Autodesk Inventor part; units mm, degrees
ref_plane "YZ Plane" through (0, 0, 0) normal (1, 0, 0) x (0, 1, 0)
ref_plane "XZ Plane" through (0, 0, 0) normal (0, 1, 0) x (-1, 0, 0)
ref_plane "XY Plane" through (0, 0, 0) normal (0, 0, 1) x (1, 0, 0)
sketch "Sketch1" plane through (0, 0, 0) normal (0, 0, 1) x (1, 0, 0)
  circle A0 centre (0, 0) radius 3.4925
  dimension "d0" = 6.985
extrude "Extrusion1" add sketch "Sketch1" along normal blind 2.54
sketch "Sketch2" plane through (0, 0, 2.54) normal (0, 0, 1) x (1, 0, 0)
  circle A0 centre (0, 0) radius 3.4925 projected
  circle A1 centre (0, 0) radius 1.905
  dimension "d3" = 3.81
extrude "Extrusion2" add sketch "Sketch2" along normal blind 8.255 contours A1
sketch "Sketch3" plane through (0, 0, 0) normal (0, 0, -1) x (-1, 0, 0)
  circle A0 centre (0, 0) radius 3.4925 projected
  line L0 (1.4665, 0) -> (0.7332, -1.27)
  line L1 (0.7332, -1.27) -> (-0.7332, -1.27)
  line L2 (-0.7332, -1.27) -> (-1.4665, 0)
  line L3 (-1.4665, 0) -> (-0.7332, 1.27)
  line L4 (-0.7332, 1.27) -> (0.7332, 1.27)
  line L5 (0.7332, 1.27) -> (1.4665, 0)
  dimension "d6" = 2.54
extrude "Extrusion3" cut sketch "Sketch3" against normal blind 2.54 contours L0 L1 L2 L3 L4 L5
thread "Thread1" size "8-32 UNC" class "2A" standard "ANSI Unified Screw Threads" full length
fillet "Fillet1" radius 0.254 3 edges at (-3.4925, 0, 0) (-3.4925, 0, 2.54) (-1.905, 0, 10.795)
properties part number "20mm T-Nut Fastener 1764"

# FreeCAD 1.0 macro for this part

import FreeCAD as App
import Part
import Sketcher
Q = App.Units.Quantity


def edges_at(feature, points):
    """Names of the edges that pass closest to the given points."""
    edges = feature.Shape.Edges
    near = lambda p: min(range(len(edges)), key=lambda i: edges[i].distToShape(Part.Vertex(*p))[0])
    return sorted({f"Edge{near(p) + 1}" for p in points})


def add_polygon(sketch, points):
    """Adds a closed chain of lines whose ends are joined by coincident constraints."""
    first, n = sketch.GeometryCount, len(points)
    for a, b in zip(points, points[1:] + points[:1]):
        sketch.addGeometry(Part.LineSegment(App.Vector(*a, 0), App.Vector(*b, 0)), False)
    for i in range(n):
        sketch.addConstraint(Sketcher.Constraint("Coincident", first + i, 2, first + (i + 1) % n, 1))

doc = App.newDocument("Part")
body = doc.addObject("PartDesign::Body", "Body")

sketch1 = doc.addObject("Sketcher::SketchObject", "Sketch")
body.addObject(sketch1)
sketch1.AttachmentSupport = (doc.XY_Plane, [""])
sketch1.MapMode = "FlatFace"
sketch1.addGeometry(Part.Circle(App.Vector(0, 0, 0), App.Vector(0, 0, 1), 3.4925), False)
sketch1.addConstraint([
    Sketcher.Constraint("Coincident", 0, 3, -1, 1),
    Sketcher.Constraint("Diameter", 0, Q("0.275 in")),
])
pad1 = doc.addObject("PartDesign::Pad", "Pad")
body.addObject(pad1)
pad1.Profile = sketch1
pad1.Length = Q("0.1 in")

sketch2 = doc.addObject("Sketcher::SketchObject", "Sketch001")
body.addObject(sketch2)
sketch2.AttachmentSupport = (doc.XY_Plane, [""])
sketch2.MapMode = "FlatFace"
sketch2.AttachmentOffset = App.Placement(App.Vector(0, 0, 0.1 * 25.4), App.Rotation())
sketch2.addGeometry(Part.Circle(App.Vector(0, 0, 0), App.Vector(0, 0, 1), 1.905), False)
sketch2.addConstraint([
    Sketcher.Constraint("Coincident", 0, 3, -1, 1),
    Sketcher.Constraint("Diameter", 0, Q("0.15 in")),
])
pad2 = doc.addObject("PartDesign::Pad", "Pad001")
body.addObject(pad2)
pad2.Profile = sketch2
pad2.Length = Q("0.325 in")

sketch3 = doc.addObject("Sketcher::SketchObject", "Sketch002")
body.addObject(sketch3)
sketch3.AttachmentSupport = (doc.XY_Plane, [""])
sketch3.MapMode = "FlatFace"
add_polygon(sketch3, [(-0.7332, -1.27), (-1.4665, 0), (-0.7332, 1.27), (0.7332, 1.27), (1.4665, 0), (0.7332, -1.27)])
sketch3.addConstraint([
    Sketcher.Constraint("Horizontal", 2),
    Sketcher.Constraint("Horizontal", 5),
    Sketcher.Constraint("Symmetric", 0, 2, 3, 2, -1, 1),
    Sketcher.Constraint("Symmetric", 1, 2, 4, 2, -1, 1),
    Sketcher.Constraint("PointOnObject", 0, 2, -1),
    Sketcher.Constraint("Parallel", 0, 3),
    Sketcher.Constraint("Vertical", 2, 2, 4, 2),
    Sketcher.Constraint("DistanceY", 4, 2, 2, 2, Q("0.1 in")),
    Sketcher.Constraint("DistanceX", 2, 1, 2, 2, Q("1.4664 mm")),
    Sketcher.Constraint("DistanceX", 0, 2, 2, 2, Q("0.0866 in")),
])
pocket1 = doc.addObject("PartDesign::Pocket", "Pocket")
body.addObject(pocket1)
pocket1.Profile = sketch3
pocket1.Length = Q("0.1 in")
pocket1.Reversed = True
doc.recompute()

fillet = doc.addObject("PartDesign::Fillet", "Fillet")
body.addObject(fillet)
fillet.Base = (pocket1, edges_at(pocket1, [(-3.493, 0, 0), (-3.493, 0, 2.54), (-1.905, 0, 10.795)]))
fillet.Radius = Q("0.01 in")

doc.recompute()
